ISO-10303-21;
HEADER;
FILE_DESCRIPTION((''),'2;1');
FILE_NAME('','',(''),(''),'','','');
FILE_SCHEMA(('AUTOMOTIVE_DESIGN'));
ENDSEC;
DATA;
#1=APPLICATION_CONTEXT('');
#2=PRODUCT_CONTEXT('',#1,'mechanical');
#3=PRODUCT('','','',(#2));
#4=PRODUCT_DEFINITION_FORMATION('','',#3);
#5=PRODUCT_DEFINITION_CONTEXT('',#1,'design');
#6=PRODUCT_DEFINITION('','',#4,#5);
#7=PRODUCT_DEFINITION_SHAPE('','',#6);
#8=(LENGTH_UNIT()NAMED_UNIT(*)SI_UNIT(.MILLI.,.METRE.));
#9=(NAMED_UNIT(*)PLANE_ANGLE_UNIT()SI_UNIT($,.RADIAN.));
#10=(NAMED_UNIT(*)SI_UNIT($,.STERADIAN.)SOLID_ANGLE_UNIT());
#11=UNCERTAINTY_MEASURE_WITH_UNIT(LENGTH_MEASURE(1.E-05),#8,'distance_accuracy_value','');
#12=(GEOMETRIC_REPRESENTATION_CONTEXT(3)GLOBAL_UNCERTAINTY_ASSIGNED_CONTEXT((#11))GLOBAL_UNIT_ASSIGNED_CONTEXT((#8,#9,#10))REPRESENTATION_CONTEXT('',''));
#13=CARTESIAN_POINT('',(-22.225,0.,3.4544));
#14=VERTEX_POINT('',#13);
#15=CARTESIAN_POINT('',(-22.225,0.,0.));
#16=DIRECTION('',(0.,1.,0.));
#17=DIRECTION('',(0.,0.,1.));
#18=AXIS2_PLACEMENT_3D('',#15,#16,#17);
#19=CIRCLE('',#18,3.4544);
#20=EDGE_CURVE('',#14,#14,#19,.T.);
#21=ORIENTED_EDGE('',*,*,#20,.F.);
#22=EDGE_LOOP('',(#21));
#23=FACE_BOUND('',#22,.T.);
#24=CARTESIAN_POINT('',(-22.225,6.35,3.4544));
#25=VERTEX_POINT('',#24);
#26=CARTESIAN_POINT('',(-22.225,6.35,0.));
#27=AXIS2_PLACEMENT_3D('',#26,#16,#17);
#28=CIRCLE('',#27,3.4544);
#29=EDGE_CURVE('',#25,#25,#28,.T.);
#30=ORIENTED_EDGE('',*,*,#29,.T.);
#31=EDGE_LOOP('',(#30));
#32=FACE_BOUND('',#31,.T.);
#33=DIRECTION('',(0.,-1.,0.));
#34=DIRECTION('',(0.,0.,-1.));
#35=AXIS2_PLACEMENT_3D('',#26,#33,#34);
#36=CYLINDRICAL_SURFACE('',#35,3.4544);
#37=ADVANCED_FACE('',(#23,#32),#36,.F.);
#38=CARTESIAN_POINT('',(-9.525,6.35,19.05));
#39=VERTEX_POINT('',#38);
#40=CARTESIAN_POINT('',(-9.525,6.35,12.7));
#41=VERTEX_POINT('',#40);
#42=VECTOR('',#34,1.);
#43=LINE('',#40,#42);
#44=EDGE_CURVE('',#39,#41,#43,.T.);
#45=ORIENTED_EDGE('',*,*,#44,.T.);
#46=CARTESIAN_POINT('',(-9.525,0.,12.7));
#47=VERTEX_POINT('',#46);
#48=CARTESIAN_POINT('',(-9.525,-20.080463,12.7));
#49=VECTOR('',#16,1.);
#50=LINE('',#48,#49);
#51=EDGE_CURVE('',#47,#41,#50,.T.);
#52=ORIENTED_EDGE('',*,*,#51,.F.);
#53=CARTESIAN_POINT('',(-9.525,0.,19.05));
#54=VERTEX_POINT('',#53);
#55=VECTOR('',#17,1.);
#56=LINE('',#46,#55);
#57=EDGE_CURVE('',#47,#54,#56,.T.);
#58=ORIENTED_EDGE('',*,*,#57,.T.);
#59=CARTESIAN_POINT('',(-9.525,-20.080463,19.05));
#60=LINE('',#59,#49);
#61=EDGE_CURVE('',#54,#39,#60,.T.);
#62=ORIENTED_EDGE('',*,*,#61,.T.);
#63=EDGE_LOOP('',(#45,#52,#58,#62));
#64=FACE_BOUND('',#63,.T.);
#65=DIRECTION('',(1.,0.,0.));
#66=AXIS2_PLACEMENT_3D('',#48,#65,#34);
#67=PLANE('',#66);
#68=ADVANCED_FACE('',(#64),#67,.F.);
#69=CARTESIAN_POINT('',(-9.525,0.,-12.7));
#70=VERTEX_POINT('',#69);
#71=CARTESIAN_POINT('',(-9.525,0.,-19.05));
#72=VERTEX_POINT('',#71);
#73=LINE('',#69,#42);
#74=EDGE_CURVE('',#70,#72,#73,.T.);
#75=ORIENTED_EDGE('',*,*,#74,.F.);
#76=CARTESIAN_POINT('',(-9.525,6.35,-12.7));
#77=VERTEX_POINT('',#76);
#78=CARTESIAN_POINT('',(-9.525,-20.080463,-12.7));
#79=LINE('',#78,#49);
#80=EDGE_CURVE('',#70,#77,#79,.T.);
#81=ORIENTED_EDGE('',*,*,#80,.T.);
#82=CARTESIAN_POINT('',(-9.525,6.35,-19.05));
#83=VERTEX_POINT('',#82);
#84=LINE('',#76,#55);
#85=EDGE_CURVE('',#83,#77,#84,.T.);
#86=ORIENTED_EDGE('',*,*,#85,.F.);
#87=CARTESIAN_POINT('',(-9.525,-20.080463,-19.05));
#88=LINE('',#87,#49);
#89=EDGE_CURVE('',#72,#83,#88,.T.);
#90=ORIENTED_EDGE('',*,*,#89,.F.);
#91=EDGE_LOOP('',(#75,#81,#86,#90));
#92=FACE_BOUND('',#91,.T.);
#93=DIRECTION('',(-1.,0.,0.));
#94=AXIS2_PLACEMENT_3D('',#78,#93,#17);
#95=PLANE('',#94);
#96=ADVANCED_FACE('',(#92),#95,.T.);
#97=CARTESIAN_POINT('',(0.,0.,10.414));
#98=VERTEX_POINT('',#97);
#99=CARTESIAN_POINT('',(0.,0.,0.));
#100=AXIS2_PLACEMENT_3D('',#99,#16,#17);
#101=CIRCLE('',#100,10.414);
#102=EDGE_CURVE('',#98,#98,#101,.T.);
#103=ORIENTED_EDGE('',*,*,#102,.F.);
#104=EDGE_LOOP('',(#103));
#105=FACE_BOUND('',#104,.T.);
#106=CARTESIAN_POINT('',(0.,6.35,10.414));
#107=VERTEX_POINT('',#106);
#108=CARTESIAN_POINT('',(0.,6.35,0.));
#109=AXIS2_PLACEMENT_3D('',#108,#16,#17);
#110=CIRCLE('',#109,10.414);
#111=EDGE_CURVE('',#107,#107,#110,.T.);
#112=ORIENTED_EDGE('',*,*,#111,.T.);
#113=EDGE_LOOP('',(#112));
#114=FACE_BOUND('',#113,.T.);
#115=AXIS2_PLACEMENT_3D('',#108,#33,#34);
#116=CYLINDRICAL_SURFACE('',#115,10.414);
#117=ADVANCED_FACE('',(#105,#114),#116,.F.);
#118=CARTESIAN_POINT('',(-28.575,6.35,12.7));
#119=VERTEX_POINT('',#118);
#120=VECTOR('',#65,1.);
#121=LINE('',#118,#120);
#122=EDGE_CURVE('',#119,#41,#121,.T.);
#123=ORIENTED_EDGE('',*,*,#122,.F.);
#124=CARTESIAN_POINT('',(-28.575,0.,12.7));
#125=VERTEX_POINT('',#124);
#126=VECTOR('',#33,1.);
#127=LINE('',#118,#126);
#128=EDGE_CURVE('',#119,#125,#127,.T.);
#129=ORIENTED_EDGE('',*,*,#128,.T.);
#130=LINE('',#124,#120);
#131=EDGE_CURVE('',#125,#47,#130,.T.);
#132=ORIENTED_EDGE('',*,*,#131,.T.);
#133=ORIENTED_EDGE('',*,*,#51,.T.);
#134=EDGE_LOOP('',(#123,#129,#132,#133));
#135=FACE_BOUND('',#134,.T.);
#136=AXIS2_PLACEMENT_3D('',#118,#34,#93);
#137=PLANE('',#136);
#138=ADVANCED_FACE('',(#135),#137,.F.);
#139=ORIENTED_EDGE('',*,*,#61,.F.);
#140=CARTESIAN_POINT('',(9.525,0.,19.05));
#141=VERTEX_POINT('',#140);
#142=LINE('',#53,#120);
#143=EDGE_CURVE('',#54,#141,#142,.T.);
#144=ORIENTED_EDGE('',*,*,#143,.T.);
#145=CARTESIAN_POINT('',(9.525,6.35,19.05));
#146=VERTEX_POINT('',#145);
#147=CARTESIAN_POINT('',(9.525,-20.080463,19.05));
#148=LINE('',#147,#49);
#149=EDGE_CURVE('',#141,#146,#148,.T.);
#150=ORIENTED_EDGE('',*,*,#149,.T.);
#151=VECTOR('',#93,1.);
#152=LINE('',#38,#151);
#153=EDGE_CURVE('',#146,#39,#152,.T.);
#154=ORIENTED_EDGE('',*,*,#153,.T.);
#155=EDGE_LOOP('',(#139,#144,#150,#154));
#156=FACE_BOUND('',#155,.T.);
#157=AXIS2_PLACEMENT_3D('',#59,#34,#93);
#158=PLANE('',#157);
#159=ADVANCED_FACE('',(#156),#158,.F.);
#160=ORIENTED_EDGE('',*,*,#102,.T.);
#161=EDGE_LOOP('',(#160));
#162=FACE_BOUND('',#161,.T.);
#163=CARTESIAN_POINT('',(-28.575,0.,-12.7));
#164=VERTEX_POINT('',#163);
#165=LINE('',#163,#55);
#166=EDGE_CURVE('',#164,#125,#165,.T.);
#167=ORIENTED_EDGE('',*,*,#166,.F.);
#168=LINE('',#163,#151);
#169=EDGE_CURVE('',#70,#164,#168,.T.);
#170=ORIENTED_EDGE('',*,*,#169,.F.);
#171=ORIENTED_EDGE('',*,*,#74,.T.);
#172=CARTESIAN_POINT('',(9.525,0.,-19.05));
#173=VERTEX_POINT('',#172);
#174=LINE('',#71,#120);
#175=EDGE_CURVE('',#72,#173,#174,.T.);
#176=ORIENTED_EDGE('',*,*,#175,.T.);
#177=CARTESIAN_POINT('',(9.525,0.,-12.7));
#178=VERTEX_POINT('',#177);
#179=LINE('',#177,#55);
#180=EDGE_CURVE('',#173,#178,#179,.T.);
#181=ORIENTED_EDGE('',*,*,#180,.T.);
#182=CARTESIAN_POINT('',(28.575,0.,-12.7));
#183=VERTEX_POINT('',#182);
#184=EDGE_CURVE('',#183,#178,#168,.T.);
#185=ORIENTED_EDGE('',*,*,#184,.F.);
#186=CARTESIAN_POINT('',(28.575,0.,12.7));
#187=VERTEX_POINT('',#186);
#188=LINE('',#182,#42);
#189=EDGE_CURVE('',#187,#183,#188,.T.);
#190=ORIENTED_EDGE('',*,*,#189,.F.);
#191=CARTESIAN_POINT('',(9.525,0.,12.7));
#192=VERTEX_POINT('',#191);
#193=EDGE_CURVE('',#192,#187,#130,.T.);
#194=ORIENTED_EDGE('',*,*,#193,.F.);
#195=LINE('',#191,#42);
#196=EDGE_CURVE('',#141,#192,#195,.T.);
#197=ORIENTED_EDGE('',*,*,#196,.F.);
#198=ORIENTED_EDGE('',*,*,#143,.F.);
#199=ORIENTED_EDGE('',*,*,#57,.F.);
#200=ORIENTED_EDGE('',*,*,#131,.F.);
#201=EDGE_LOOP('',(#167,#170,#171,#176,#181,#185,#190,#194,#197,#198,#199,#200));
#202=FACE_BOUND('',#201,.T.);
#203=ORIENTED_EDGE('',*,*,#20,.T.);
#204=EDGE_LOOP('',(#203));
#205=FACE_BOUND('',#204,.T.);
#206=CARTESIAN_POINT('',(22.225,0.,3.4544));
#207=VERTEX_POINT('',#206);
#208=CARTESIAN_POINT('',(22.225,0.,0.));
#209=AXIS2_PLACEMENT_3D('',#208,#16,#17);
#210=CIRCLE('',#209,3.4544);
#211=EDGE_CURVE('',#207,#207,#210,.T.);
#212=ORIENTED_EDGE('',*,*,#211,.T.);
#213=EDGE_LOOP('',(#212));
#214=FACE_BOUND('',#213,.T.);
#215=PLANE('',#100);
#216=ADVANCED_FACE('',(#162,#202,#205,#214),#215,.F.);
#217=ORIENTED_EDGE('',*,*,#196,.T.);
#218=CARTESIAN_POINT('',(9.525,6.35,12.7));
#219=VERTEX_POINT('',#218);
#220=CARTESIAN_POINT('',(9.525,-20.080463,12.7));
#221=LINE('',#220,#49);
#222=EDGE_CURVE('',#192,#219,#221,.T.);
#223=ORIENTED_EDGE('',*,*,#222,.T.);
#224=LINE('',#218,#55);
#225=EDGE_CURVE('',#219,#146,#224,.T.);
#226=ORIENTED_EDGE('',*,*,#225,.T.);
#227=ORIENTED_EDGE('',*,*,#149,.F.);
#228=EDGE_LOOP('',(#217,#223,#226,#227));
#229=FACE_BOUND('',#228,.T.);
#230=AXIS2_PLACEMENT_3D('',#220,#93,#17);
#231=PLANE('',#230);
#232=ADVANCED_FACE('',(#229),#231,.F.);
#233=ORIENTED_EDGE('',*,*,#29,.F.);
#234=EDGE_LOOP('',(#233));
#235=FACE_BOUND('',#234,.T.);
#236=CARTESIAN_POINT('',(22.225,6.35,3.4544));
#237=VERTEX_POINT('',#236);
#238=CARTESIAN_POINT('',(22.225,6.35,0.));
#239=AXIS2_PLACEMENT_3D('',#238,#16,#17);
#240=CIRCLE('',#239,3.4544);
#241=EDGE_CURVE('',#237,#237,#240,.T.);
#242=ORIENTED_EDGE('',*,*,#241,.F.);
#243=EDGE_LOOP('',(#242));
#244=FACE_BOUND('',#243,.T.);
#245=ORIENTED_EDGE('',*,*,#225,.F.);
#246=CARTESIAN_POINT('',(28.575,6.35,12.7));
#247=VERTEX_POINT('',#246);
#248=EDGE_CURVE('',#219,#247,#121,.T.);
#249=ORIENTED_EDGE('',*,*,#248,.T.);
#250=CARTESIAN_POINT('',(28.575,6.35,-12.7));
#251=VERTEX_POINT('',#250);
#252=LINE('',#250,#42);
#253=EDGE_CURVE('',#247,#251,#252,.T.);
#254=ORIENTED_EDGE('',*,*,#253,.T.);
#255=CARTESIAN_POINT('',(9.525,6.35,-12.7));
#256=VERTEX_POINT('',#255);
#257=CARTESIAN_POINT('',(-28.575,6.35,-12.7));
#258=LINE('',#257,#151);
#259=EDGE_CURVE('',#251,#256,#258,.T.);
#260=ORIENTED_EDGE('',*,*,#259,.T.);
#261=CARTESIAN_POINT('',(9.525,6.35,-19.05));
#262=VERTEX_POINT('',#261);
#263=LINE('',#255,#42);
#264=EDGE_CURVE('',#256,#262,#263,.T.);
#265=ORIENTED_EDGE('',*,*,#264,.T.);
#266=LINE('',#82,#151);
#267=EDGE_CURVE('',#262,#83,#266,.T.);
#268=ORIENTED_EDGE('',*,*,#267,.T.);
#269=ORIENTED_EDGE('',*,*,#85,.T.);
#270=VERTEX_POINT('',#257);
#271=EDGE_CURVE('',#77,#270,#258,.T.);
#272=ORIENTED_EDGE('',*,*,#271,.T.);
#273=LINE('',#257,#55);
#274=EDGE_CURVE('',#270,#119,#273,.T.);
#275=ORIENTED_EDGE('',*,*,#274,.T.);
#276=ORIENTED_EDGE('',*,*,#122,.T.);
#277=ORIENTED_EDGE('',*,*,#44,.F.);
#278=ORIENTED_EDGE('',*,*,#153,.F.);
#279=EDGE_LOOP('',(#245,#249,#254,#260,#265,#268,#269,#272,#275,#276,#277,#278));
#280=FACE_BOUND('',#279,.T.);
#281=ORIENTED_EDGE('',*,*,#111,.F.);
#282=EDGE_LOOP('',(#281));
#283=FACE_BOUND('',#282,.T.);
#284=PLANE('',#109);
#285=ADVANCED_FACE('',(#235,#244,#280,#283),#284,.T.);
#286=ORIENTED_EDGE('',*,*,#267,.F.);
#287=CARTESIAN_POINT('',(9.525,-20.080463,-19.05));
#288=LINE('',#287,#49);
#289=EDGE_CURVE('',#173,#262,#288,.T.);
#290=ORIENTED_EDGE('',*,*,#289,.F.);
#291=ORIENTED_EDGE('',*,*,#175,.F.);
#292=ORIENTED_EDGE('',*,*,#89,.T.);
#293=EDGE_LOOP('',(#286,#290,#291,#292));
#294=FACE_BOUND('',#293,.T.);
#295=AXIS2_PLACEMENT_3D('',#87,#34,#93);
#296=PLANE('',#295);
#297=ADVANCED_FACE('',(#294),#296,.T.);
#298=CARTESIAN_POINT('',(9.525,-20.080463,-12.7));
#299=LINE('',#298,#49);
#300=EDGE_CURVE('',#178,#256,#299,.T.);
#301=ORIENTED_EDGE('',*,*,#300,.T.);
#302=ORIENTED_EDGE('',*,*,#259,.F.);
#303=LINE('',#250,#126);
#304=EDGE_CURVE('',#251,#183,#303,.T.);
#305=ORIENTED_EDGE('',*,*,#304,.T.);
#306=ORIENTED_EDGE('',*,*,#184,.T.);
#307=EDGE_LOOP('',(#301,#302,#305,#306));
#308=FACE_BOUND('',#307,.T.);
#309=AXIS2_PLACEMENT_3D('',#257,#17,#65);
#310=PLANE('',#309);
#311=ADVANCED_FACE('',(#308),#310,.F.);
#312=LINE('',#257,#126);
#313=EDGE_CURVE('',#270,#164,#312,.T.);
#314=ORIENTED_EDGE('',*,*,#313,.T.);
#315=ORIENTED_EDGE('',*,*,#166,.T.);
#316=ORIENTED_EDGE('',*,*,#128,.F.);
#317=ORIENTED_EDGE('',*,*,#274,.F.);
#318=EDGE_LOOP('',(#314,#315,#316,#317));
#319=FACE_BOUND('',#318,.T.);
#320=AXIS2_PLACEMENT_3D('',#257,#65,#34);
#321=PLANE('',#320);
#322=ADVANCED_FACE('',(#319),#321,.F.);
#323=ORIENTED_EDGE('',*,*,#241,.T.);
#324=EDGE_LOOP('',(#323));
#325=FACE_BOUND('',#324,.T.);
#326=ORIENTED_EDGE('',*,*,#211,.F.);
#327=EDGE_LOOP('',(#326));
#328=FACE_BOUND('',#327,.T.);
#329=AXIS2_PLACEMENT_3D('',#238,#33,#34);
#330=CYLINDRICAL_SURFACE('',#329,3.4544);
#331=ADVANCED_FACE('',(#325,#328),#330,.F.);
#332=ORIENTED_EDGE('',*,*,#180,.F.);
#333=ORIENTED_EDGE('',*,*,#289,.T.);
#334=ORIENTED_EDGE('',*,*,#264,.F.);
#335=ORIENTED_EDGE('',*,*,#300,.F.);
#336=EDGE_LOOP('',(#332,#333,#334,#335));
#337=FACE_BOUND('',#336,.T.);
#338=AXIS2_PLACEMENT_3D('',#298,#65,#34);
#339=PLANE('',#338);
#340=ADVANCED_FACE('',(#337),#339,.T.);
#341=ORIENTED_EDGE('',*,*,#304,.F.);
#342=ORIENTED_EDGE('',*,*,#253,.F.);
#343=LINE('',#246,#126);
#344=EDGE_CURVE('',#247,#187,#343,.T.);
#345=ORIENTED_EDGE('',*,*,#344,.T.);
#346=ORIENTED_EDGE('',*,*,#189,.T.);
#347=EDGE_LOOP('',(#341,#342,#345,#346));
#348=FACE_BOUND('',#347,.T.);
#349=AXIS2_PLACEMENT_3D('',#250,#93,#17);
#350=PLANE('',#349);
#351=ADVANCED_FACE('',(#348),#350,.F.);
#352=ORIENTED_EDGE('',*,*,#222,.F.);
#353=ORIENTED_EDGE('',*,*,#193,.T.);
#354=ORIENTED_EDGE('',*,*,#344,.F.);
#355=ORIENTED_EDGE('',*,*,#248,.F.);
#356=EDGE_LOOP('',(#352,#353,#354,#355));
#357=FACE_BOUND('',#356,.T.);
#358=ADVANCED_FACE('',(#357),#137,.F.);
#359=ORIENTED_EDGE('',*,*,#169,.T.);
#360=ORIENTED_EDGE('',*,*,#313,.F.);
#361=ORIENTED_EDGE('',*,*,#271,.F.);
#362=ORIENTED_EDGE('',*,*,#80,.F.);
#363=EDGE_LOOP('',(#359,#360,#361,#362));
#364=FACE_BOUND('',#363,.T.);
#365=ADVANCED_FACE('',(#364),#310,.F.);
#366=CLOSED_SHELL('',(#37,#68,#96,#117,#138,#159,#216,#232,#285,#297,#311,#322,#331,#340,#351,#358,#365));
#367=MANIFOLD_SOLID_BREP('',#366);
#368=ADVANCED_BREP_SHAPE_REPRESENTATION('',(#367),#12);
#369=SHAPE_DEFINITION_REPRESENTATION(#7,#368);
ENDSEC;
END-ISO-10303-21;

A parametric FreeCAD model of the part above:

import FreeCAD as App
import Part
import Sketcher
Q = App.Units.Quantity


def add_polygon(sketch, points):
    """Adds a closed chain of lines whose ends are joined by coincident constraints."""
    first, n = sketch.GeometryCount, len(points)
    for a, b in zip(points, points[1:] + points[:1]):
        sketch.addGeometry(Part.LineSegment(App.Vector(*a, 0), App.Vector(*b, 0)), False)
    for i in range(n):
        sketch.addConstraint(Sketcher.Constraint("Coincident", first + i, 2, first + (i + 1) % n, 1))

doc = App.newDocument("Part")
params = doc.addObject("Spreadsheet::Sheet", "Params")
for row, (alias, value) in enumerate([
    ("sketch1_diameter", "0.82 in"),
    ("sketch1_height", "1 in"),
    ("sketch1_diameter2", "0.272 in"),
    ("sketch1_width", "2.25 in"),
    ("pad1_length", "0.25 in"),
    ("sketch2_width", "0.75 in"),
    ("sketch2_height", "0.25 in"),
    ("pad2_length", "0.25 in"),
], start=1):
    params.set(f"A{row}", alias)
    params.set(f"B{row}", "=" + value)
    params.setAlias(f"B{row}", alias)

body = doc.addObject("PartDesign::Body", "Body")

sketch1 = body.newObject("Sketcher::SketchObject", "Sketch")
sketch1.AttachmentSupport = (doc.getObject("XZ_Plane"), [""])
sketch1.MapMode = "FlatFace"
add_polygon(sketch1, [(-28.6, -12.7), (-28.6, 12.7), (28.6, 12.7), (28.6, -12.7)])
sketch1.addGeometry(Part.Circle(App.Vector(-22.2, 0, 0), App.Vector(0, 0, 1), 3.5), False)
sketch1.addGeometry(Part.Circle(App.Vector(0, 0, 0), App.Vector(0, 0, 1), 10.4), False)
sketch1.addGeometry(Part.Circle(App.Vector(22.2, 0, 0), App.Vector(0, 0, 1), 3.5), False)
sketch1.addConstraint([
    Sketcher.Constraint("Vertical", 0),
    Sketcher.Constraint("Horizontal", 1),
    Sketcher.Constraint("Vertical", 2),
    Sketcher.Constraint("Horizontal", 3),
    Sketcher.Constraint("Coincident", 5, 3, -1, 1),
    Sketcher.Constraint("Equal", 4, 6),
    Sketcher.Constraint("Symmetric", 4, 3, 6, 3, -1, 1),
    Sketcher.Constraint("Symmetric", 0, 2, 2, 2, -1, 1),
    Sketcher.Constraint("PointOnObject", 4, 3, -1),
    Sketcher.Constraint("Diameter", 5, Q("0.82 in")),
    Sketcher.Constraint("DistanceY", 0, 1, 0, 2, Q("1 in")),
    Sketcher.Constraint("Diameter", 4, Q("0.272 in")),
    Sketcher.Constraint("DistanceX", 0, 2, 6, 3, Q("2 in")),
    Sketcher.Constraint("DistanceX", 1, 1, 1, 2, Q("2.25 in")),
])
sketch1.setExpression("Constraints[13]", "Params.sketch1_diameter")
sketch1.setExpression("Constraints[14]", "Params.sketch1_height")
sketch1.setExpression("Constraints[15]", "Params.sketch1_diameter2")
sketch1.setExpression("Constraints[17]", "Params.sketch1_width")
pad1 = body.newObject("PartDesign::Pad", "Pad")
pad1.Profile = sketch1
pad1.setExpression("Length", "Params.pad1_length")
pad1.Reversed = True

sketch2 = body.newObject("Sketcher::SketchObject", "Sketch001")
sketch2.AttachmentSupport = (doc.getObject("XZ_Plane"), [""])
sketch2.MapMode = "FlatFace"
sketch2.AttachmentOffset = App.Placement(App.Vector(0, 0, -0.25 * 25.4), App.Rotation())
add_polygon(sketch2, [(-10, -19), (-10, -13), (10, -13), (10, -19)])
sketch2.addConstraint([
    Sketcher.Constraint("Vertical", 0),
    Sketcher.Constraint("Horizontal", 1),
    Sketcher.Constraint("Vertical", 2),
    Sketcher.Constraint("Horizontal", 3),
    Sketcher.Constraint("DistanceX", 1, 1, 1, 2, Q("0.75 in")),
    Sketcher.Constraint("DistanceY", 0, 1, 0, 2, Q("0.25 in")),
    Sketcher.Constraint("DistanceY", 0, 2, -1, 1, Q("0.5 in")),
    Sketcher.Constraint("DistanceX", 0, 2, -1, 1, Q("0.375 in")),
])
sketch2.setExpression("Constraints[8]", "Params.sketch2_width")
sketch2.setExpression("Constraints[9]", "Params.sketch2_height")
pad2 = body.newObject("PartDesign::Pad", "Pad001")
pad2.Profile = sketch2
pad2.setExpression("Length", "Params.pad2_length")
doc.recompute()

mirrored = body.newObject("PartDesign::Mirrored", "Mirrored")
mirrored.Originals = [pad2]
mirrored.MirrorPlane = (doc.getObject("XY_Plane"), [""])
body.Tip = mirrored

doc.recompute()
